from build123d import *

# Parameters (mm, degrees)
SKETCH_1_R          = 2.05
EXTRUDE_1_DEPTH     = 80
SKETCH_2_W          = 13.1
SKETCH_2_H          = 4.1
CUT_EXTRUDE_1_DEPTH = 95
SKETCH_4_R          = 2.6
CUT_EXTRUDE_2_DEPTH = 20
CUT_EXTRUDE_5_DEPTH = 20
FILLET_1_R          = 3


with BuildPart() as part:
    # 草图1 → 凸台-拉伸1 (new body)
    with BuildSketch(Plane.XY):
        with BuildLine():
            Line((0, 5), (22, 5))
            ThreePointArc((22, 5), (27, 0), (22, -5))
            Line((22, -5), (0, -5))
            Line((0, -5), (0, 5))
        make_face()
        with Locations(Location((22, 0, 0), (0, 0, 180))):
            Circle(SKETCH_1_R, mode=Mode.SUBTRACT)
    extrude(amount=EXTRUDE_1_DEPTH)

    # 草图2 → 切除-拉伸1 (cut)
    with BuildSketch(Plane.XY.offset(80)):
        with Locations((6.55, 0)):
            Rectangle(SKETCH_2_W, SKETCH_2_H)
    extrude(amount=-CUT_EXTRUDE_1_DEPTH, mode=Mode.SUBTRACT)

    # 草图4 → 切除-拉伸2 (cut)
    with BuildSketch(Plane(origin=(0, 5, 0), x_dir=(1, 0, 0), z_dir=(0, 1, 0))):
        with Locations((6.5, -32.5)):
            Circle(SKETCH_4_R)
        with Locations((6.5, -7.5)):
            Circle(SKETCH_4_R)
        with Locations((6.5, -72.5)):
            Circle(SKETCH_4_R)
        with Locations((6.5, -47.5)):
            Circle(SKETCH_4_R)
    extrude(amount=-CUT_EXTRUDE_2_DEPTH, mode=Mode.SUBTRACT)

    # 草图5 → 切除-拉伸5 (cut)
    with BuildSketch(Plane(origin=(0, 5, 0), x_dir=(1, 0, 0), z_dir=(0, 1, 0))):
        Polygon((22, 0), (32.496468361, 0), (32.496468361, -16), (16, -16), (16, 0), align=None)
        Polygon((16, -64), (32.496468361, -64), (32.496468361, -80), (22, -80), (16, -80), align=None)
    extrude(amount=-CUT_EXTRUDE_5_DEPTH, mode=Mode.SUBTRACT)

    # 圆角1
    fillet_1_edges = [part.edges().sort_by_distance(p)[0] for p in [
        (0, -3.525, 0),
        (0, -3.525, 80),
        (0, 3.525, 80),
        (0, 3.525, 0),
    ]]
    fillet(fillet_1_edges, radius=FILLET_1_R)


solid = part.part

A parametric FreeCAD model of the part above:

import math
import FreeCAD as App
import Part
import Sketcher

V = App.Vector


def edges_at(feature, points):
    """Names of the edges that pass closest to the given points."""
    edges = feature.Shape.Edges
    near = lambda p: min(range(len(edges)), key=lambda i: edges[i].distToShape(Part.Vertex(*p))[0])
    return sorted({f"Edge{near(p) + 1}" for p in points})

doc = App.newDocument("Part")
body = doc.addObject("PartDesign::Body", "Body")

# Sketch on XY plane
sketch1 = body.newObject("Sketcher::SketchObject", "Sketch")
sketch1.AttachmentSupport = (doc.getObject("XY_Plane"), [""])
sketch1.MapMode = "FlatFace"
sketch1.addGeometry([
    Part.LineSegment(V(22, 5, 0), V(0, 5, 0)),  # 0
    Part.LineSegment(V(0, 5, 0), V(0, -5, 0)),  # 1
    Part.LineSegment(V(0, -5, 0), V(22, -5, 0)),  # 2
    Part.ArcOfCircle(Part.Circle(V(22, 0, 0), V(0, 0, 1), 5), math.radians(-90), math.radians(90)),  # 3
    Part.Circle(V(22, 0, 0), V(0, 0, 1), 2.05),  # 4
], False)
sketch1.addConstraint([
    Sketcher.Constraint("Coincident", 0, 2, 1, 1),
    Sketcher.Constraint("Coincident", 1, 2, 2, 1),
    Sketcher.Constraint("Tangent", 2, 2, 3, 1),
    Sketcher.Constraint("Tangent", 3, 2, 0, 1),
    Sketcher.Constraint("Horizontal", 0),
    Sketcher.Constraint("Vertical", 1),
    Sketcher.Constraint("Horizontal", 2),
    Sketcher.Constraint("Coincident", 4, 3, 3, 3),
    Sketcher.Constraint("Symmetric", 0, 2, 1, 2, -1, 1),
    Sketcher.Constraint("Radius", 3, 5.0),
    Sketcher.Constraint("Diameter", 4, 4.1),
    Sketcher.Constraint("DistanceX", 0, 2, 0, 1, 22.0),
])
pad1 = body.newObject("PartDesign::Pad", "Pad")
pad1.Profile = sketch1
pad1.Length = 80

# Sketch on XY plane
sketch2 = body.newObject("Sketcher::SketchObject", "Sketch001")
sketch2.AttachmentSupport = (doc.getObject("XY_Plane"), [""])
sketch2.MapMode = "FlatFace"
sketch2.AttachmentOffset = App.Placement(V(0, 0, 80), App.Rotation())
sketch2.addGeometry([
    Part.LineSegment(V(0, 2.05, 0), V(0, -2.05, 0)),
    Part.LineSegment(V(0, -2.05, 0), V(13.1, -2.05, 0)),
    Part.LineSegment(V(13.1, -2.05, 0), V(13.1, 2.05, 0)),
    Part.LineSegment(V(13.1, 2.05, 0), V(0, 2.05, 0)),
], False)
sketch2.addConstraint([
    Sketcher.Constraint("Coincident", 0, 2, 1, 1),
    Sketcher.Constraint("Coincident", 1, 2, 2, 1),
    Sketcher.Constraint("Coincident", 2, 2, 3, 1),
    Sketcher.Constraint("Coincident", 3, 2, 0, 1),
    Sketcher.Constraint("Vertical", 0),
    Sketcher.Constraint("Horizontal", 1),
    Sketcher.Constraint("Vertical", 2),
    Sketcher.Constraint("Horizontal", 3),
    Sketcher.Constraint("Symmetric", 0, 2, 3, 2, -1, 1),
    Sketcher.Constraint("DistanceX", 1, 1, 1, 2, 13.1),
    Sketcher.Constraint("DistanceY", 0, 2, 0, 1, 4.1),
])
pocket1 = body.newObject("PartDesign::Pocket", "Pocket")
pocket1.Profile = sketch2
pocket1.Length = 95

# Sketch on XZ plane
sketch3 = body.newObject("Sketcher::SketchObject", "Sketch002")
sketch3.AttachmentSupport = (doc.getObject("XZ_Plane"), [""])
sketch3.MapMode = "FlatFace"
sketch3.AttachmentOffset = App.Placement(V(0, 0, -5), App.Rotation())
sketch3.addGeometry([
    Part.Circle(V(6.5, 32.5, 0), V(0, 0, 1), 2.6),
    Part.Circle(V(6.5, 7.5, 0), V(0, 0, 1), 2.6),
    Part.Circle(V(6.5, 72.5, 0), V(0, 0, 1), 2.6),
    Part.Circle(V(6.5, 47.5, 0), V(0, 0, 1), 2.6),
], False)
sketch3.addConstraint([
    Sketcher.Constraint("Equal", 0, 1),
    Sketcher.Constraint("Equal", 1, 2),
    Sketcher.Constraint("Equal", 2, 3),
    Sketcher.Constraint("Vertical", 0, 3, 1, 3),
    Sketcher.Constraint("Vertical", 1, 3, 2, 3),
    Sketcher.Constraint("Vertical", 2, 3, 3, 3),
    Sketcher.Constraint("Diameter", 0, 5.2),
    Sketcher.Constraint("DistanceY", 1, 3, 0, 3, 25.0),
    Sketcher.Constraint("DistanceY", 0, 3, 2, 3, 40.0),
    Sketcher.Constraint("DistanceY", 0, 3, 3, 3, 15.0),
    Sketcher.Constraint("DistanceX", -1, 1, 0, 3, 6.5),
    Sketcher.Constraint("DistanceY", -1, 1, 0, 3, 32.5),
])
pocket2 = body.newObject("PartDesign::Pocket", "Pocket001")
pocket2.Profile = sketch3
pocket2.Length = 20
pocket2.Reversed = True

# Sketch on XZ plane
sketch4 = body.newObject("Sketcher::SketchObject", "Sketch003")
sketch4.AttachmentSupport = (doc.getObject("XZ_Plane"), [""])
sketch4.MapMode = "FlatFace"
sketch4.AttachmentOffset = App.Placement(V(0, 0, -5), App.Rotation())
sketch4.addGeometry([
    Part.LineSegment(V(32.496468, 0, 0), V(16, 0, 0)),  # 0
    Part.LineSegment(V(16, 0, 0), V(16, 16, 0)),  # 1
    Part.LineSegment(V(16, 16, 0), V(32.496468, 16, 0)),  # 2
    Part.LineSegment(V(32.496468, 16, 0), V(32.496468, 0, 0)),  # 3
    Part.LineSegment(V(32.496468, 64, 0), V(16, 64, 0)),  # 4
    Part.LineSegment(V(16, 64, 0), V(16, 80, 0)),  # 5
    Part.LineSegment(V(16, 80, 0), V(32.496468, 80, 0)),  # 6
    Part.LineSegment(V(32.496468, 80, 0), V(32.496468, 64, 0)),  # 7
], False)
sketch4.addConstraint([
    Sketcher.Constraint("Coincident", 0, 2, 1, 1),
    Sketcher.Constraint("Coincident", 1, 2, 2, 1),
    Sketcher.Constraint("Coincident", 2, 2, 3, 1),
    Sketcher.Constraint("Coincident", 3, 2, 0, 1),
    Sketcher.Constraint("Coincident", 4, 2, 5, 1),
    Sketcher.Constraint("Coincident", 5, 2, 6, 1),
    Sketcher.Constraint("Coincident", 6, 2, 7, 1),
    Sketcher.Constraint("Coincident", 7, 2, 4, 1),
    Sketcher.Constraint("Horizontal", 0),
    Sketcher.Constraint("Vertical", 1),
    Sketcher.Constraint("Horizontal", 2),
    Sketcher.Constraint("Vertical", 3),
    Sketcher.Constraint("Horizontal", 4),
    Sketcher.Constraint("Vertical", 5),
    Sketcher.Constraint("Horizontal", 6),
    Sketcher.Constraint("Vertical", 7),
    Sketcher.Constraint("PointOnObject", 0, 2, -1),
    Sketcher.Constraint("Vertical", 1, 2, 4, 2),
    Sketcher.Constraint("Vertical", 3, 2, 6, 2),
    Sketcher.Constraint("Equal", 3, 5),
    Sketcher.Constraint("DistanceY", 1, 1, 1, 2, 16.0),
    Sketcher.Constraint("DistanceX", -1, 1, 0, 2, 16.0),
    Sketcher.Constraint("DistanceY", -1, 1, 4, 2, 64.0),
    Sketcher.Constraint("DistanceX", 0, 2, 0, 1, 16.496468),
])
pocket3 = body.newObject("PartDesign::Pocket", "Pocket002")
pocket3.Profile = sketch4
pocket3.Length = 20
pocket3.Reversed = True
doc.recompute()

fillet = body.newObject("PartDesign::Fillet", "Fillet")
fillet.Base = (pocket3, edges_at(pocket3, [
    (0, -3.525, 0),
    (0, -3.525, 80),
    (0, 3.525, 80),
    (0, 3.525, 0),
]))
fillet.Radius = 3

doc.recompute()
